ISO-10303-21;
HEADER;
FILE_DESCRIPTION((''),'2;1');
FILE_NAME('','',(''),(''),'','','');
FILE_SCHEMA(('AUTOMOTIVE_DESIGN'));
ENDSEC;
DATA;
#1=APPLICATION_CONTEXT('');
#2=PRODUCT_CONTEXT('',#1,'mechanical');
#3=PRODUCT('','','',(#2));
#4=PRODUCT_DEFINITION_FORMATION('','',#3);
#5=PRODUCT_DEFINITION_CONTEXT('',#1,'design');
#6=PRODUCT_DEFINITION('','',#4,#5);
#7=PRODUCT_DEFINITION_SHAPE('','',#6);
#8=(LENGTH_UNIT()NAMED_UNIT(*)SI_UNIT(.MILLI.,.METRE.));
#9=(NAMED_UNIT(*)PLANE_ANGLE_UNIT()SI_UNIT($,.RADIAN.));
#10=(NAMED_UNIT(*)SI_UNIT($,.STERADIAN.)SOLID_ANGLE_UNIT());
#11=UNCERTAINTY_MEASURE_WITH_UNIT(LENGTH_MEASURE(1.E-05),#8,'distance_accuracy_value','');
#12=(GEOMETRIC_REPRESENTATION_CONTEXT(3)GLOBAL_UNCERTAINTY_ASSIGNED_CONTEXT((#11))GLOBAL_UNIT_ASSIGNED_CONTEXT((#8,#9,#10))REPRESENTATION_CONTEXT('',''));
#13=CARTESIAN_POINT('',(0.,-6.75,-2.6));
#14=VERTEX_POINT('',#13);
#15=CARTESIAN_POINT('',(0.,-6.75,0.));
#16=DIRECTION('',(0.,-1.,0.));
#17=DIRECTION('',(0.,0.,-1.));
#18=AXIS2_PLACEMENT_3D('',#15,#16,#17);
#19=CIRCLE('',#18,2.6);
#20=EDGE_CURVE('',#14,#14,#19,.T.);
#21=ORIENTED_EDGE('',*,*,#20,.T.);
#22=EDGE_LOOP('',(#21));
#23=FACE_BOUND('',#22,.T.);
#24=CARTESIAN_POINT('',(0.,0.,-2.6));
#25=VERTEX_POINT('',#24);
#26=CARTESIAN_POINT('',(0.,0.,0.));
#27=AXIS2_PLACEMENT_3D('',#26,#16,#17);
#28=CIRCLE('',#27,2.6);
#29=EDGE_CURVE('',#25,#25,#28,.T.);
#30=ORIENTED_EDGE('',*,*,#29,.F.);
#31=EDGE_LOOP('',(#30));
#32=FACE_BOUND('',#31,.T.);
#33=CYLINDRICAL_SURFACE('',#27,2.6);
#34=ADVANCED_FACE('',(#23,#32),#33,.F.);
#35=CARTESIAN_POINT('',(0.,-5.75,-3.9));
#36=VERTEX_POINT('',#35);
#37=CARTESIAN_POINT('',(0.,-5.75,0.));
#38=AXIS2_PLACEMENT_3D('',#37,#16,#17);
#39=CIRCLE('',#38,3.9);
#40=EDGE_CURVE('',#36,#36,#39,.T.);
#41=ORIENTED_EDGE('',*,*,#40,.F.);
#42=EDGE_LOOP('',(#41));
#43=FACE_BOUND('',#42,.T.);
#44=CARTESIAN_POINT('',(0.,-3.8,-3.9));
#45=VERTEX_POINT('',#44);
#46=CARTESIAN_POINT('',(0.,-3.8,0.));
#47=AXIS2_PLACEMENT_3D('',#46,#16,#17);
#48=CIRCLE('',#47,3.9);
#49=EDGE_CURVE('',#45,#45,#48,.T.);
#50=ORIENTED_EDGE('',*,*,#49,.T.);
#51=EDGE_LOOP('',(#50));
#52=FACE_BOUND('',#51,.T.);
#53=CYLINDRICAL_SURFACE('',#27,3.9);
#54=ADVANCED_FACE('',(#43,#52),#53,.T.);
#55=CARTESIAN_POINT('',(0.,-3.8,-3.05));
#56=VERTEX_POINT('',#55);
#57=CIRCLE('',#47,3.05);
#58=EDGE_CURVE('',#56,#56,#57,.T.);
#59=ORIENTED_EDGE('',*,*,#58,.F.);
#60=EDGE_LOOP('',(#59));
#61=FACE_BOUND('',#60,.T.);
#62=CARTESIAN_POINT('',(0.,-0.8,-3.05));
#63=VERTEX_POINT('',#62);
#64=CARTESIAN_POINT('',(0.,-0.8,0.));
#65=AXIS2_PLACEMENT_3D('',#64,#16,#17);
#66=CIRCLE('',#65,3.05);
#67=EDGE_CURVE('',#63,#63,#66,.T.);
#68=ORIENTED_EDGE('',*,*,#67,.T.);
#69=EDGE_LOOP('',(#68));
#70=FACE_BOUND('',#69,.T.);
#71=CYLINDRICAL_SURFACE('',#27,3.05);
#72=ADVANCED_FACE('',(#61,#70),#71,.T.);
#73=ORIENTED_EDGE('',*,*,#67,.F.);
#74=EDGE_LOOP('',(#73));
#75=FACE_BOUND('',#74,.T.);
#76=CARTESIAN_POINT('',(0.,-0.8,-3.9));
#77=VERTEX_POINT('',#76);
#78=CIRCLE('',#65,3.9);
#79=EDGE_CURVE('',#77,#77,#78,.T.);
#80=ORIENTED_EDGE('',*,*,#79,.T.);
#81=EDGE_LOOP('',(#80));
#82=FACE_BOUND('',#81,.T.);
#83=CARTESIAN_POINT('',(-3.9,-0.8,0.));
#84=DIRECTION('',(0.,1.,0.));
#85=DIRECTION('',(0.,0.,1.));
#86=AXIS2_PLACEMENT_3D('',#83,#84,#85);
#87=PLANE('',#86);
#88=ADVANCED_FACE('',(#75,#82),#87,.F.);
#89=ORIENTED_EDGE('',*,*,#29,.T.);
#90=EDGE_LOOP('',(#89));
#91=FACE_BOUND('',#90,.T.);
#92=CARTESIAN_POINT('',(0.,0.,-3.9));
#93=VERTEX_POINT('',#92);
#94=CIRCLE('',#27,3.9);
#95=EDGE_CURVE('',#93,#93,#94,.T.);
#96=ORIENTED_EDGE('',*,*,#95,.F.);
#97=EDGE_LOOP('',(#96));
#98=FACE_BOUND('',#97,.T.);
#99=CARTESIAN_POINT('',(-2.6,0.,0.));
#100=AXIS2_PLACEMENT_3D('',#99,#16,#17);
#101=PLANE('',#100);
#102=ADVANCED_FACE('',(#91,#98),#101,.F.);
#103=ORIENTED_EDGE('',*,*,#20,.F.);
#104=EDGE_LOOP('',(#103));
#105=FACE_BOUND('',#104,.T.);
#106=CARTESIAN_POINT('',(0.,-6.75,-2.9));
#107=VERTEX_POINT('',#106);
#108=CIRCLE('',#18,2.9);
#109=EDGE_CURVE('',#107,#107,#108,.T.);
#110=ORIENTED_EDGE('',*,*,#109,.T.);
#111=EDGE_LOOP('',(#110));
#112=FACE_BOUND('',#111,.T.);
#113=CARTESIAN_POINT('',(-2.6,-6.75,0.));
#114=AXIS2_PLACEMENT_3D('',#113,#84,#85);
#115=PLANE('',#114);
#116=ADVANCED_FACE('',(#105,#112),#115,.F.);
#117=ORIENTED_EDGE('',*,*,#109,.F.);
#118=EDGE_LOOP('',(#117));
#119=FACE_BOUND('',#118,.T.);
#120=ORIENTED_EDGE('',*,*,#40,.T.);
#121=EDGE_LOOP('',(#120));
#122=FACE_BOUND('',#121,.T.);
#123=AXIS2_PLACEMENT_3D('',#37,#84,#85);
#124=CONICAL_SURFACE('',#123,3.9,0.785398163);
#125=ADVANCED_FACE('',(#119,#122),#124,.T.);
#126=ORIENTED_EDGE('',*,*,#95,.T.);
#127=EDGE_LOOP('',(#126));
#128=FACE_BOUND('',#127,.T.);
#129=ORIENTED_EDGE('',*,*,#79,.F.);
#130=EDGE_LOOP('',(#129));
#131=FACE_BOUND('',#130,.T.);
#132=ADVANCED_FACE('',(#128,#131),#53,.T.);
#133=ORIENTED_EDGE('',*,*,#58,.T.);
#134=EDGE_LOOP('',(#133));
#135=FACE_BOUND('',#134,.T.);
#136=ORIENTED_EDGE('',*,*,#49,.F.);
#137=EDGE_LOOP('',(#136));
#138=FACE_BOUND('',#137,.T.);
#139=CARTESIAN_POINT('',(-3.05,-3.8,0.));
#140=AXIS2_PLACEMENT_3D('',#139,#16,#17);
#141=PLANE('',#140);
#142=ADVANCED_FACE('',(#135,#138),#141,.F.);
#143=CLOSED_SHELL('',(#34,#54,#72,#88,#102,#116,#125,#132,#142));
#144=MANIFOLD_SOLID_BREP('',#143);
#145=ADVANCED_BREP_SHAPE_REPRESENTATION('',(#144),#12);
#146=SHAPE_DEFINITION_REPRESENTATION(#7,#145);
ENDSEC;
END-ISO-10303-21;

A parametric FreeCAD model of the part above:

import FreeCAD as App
import Part
import Sketcher

V = App.Vector
Q = App.Units.Quantity


def add_polygon(sketch, points):
    """Adds a closed chain of lines whose ends are joined by coincident constraints."""
    first, n = sketch.GeometryCount, len(points)
    for a, b in zip(points, points[1:] + points[:1]):
        sketch.addGeometry(Part.LineSegment(App.Vector(*a, 0), App.Vector(*b, 0)), False)
    for i in range(n):
        sketch.addConstraint(Sketcher.Constraint("Coincident", first + i, 2, first + (i + 1) % n, 1))

doc = App.newDocument("Part")
body = doc.addObject("PartDesign::Body", "Body")

sketch1 = doc.addObject("Sketcher::SketchObject", "Sketch")
body.addObject(sketch1)
sketch1.AttachmentSupport = (doc.XY_Plane, [""])
sketch1.MapMode = "FlatFace"
add_polygon(sketch1, [(-2.6, 0), (-3.9, 0), (-3.9, -0.8), (-3.05, -0.8), (-3.05, -3.8), (-3.9, -3.8), (-3.9, -5.75), (-2.9, -6.75), (-2.6, -6.75)])
sketch1.addConstraint(Sketcher.Constraint("Horizontal", 0))
sketch1.addConstraint(Sketcher.Constraint("Vertical", 1))
sketch1.addConstraint(Sketcher.Constraint("Horizontal", 2))
sketch1.addConstraint(Sketcher.Constraint("Vertical", 3))
sketch1.addConstraint(Sketcher.Constraint("Horizontal", 4))
sketch1.addConstraint(Sketcher.Constraint("Vertical", 5))
sketch1.addConstraint(Sketcher.Constraint("Horizontal", 7))
sketch1.addConstraint(Sketcher.Constraint("Vertical", 8))
sketch1.addConstraint(Sketcher.Constraint("PointOnObject", 0, 2, -1))
sketch1.addConstraint(Sketcher.Constraint("Vertical", 1, 2, 4, 2))
sketch1.addConstraint(Sketcher.Constraint("DistanceY", 3, 2, 3, 1, 3.0))
sketch1.addConstraint(Sketcher.Constraint("Angle", 6, Q("-45 deg")))
sketch1.addConstraint(Sketcher.Constraint("DistanceX", 0, 2, 0, 1, 1.3))
sketch1.addConstraint(Sketcher.Constraint("DistanceX", 7, 1, 7, 2, 0.3))
sketch1.addConstraint(Sketcher.Constraint("DistanceY", 1, 2, 1, 1, 0.8))
sketch1.addConstraint(Sketcher.Constraint("DistanceX", 2, 1, 2, 2, 0.85))
sketch1.addConstraint(Sketcher.Constraint("DistanceY", 5, 2, 5, 1, 1.95))
sketch1.addConstraint(Sketcher.Constraint("DistanceX", 0, 2, -1, 1, 3.9))
revolution = doc.addObject("PartDesign::Revolution", "Revolution")
body.addObject(revolution)
revolution.Profile = sketch1
revolution.ReferenceAxis = (sketch1, ["V_Axis"])
revolution.Angle = 360

doc.recompute()
